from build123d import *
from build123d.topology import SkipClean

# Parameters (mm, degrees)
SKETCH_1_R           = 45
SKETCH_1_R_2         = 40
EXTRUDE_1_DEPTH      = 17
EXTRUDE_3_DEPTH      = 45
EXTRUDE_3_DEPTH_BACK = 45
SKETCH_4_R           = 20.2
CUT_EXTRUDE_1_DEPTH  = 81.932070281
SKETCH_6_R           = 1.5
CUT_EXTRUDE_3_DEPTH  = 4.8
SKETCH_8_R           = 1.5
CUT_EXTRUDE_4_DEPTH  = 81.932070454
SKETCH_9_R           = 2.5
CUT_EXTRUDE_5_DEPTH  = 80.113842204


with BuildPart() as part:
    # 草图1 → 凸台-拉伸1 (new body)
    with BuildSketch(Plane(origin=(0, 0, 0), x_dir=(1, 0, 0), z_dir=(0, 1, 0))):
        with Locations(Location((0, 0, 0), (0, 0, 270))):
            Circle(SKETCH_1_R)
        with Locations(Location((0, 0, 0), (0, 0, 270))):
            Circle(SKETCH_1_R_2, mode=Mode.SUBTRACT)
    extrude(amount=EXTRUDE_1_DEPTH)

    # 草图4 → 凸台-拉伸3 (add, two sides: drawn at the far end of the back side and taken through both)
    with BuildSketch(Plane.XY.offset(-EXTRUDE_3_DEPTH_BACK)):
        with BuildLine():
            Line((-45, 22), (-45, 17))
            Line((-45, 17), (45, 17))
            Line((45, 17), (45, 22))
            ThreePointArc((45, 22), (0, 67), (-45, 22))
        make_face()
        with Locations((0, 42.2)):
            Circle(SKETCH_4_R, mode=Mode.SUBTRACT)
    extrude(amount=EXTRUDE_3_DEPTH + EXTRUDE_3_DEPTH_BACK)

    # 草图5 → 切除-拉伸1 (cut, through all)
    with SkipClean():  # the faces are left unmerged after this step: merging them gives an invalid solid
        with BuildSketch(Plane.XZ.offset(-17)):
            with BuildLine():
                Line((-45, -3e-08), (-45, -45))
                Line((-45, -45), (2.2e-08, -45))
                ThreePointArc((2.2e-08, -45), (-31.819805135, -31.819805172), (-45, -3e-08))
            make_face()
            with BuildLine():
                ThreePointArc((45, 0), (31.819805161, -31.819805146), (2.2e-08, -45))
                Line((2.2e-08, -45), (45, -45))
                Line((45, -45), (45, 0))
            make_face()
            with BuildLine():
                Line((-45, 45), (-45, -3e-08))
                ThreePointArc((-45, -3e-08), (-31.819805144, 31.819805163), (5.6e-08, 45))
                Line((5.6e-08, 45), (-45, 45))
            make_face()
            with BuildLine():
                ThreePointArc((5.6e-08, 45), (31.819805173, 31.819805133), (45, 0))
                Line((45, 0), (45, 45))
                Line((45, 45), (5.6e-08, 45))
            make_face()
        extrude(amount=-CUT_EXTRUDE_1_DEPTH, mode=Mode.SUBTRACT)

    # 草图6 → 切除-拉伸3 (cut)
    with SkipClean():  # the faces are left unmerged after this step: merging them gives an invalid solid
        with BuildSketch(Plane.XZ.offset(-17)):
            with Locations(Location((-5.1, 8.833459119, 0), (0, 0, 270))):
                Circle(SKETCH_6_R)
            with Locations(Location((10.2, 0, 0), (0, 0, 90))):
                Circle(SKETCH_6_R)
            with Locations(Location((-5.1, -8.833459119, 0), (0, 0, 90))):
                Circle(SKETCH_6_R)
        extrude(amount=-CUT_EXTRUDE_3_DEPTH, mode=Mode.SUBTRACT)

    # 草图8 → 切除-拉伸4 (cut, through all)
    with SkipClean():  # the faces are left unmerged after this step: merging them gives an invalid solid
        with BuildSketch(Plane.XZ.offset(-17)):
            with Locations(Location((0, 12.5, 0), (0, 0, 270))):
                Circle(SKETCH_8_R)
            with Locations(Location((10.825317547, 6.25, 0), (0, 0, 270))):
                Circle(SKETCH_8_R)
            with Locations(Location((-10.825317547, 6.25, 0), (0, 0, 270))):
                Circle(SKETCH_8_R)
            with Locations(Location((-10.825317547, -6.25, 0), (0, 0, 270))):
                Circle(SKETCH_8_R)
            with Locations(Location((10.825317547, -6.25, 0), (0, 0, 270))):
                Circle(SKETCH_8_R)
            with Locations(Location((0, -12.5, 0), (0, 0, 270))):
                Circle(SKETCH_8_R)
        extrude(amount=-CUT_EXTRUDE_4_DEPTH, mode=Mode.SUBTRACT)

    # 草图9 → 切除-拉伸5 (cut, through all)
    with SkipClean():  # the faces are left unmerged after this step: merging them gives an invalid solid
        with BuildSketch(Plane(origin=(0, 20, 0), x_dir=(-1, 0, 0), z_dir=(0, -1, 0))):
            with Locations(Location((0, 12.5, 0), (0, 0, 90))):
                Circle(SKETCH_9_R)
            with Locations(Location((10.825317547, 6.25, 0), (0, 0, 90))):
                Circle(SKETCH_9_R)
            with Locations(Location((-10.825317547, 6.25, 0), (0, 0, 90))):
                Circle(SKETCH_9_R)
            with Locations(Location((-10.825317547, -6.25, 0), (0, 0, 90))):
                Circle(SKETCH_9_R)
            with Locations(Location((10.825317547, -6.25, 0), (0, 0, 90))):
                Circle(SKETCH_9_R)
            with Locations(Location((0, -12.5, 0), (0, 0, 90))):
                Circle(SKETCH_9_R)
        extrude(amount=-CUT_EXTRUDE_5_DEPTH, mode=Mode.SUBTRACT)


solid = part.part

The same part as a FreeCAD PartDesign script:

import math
import FreeCAD as App
import Part
import Sketcher
from FreeCAD import Vector
Q = App.Units.Quantity

doc = App.newDocument("Part")
body = doc.addObject("PartDesign::Body", "Body")

# Sketch on XZ plane
sketch1 = body.newObject("Sketcher::SketchObject", "Sketch")
sketch1.AttachmentSupport = (doc.getObject("XZ_Plane"), [""])
sketch1.MapMode = "FlatFace"
sketch1.addGeometry([
    Part.Circle(Vector(0, 0, 0), Vector(0, 0, 1), 45),
    Part.Circle(Vector(0, 0, 0), Vector(0, 0, 1), 40),
], False)
sketch1.addConstraint([
    Sketcher.Constraint("Coincident", 0, 3, -1, 1),
    Sketcher.Constraint("Coincident", 1, 3, -1, 1),
    Sketcher.Constraint("Diameter", 0, Q("90 mm")),
    Sketcher.Constraint("Diameter", 1, Q("80 mm")),
])
pad1 = body.newObject("PartDesign::Pad", "Pad")
pad1.Profile = sketch1
pad1.Length = 17
pad1.Reversed = True

# Sketch on XY plane
sketch2 = body.newObject("Sketcher::SketchObject", "Sketch001")
sketch2.AttachmentSupport = (doc.getObject("XY_Plane"), [""])
sketch2.MapMode = "FlatFace"
sketch2.addGeometry([
    Part.LineSegment(Vector(-45, 22, 0), Vector(-45, 17, 0)),  # 0
    Part.LineSegment(Vector(-45, 17, 0), Vector(45, 17, 0)),  # 1
    Part.LineSegment(Vector(45, 17, 0), Vector(45, 22, 0)),  # 2
    Part.ArcOfCircle(Part.Circle(Vector(0, 22, 0), Vector(0, 0, 1), 45), math.radians(0), math.radians(180)),  # 3
    Part.Circle(Vector(0, 42, 0), Vector(0, 0, 1), 20),  # 4
], False)
sketch2.addConstraint([
    Sketcher.Constraint("Coincident", 0, 2, 1, 1),
    Sketcher.Constraint("Coincident", 1, 2, 2, 1),
    Sketcher.Constraint("Tangent", 2, 2, 3, 1),
    Sketcher.Constraint("Tangent", 3, 2, 0, 1),
    Sketcher.Constraint("Vertical", 0),
    Sketcher.Constraint("Horizontal", 1),
    Sketcher.Constraint("Vertical", 2),
    Sketcher.Constraint("PointOnObject", 3, 3, -2),
    Sketcher.Constraint("PointOnObject", 4, 3, -2),
    Sketcher.Constraint("Radius", 3, Q("45 mm")),
    Sketcher.Constraint("Diameter", 4, Q("40.4 mm")),
    Sketcher.Constraint("DistanceY", 0, 2, 0, 1, Q("5 mm")),
    Sketcher.Constraint("DistanceY", -1, 1, 3, 3, Q("22 mm")),
    Sketcher.Constraint("DistanceY", -1, 1, 4, 3, Q("42.2 mm")),
])
pad2 = body.newObject("PartDesign::Pad", "Pad001")
pad2.Profile = sketch2
pad2.Type = "TwoLengths"
pad2.Length = 45
pad2.Length2 = 45

# Sketch on XZ plane
sketch3 = body.newObject("Sketcher::SketchObject", "Sketch002")
sketch3.AttachmentSupport = (doc.getObject("XZ_Plane"), [""])
sketch3.MapMode = "FlatFace"
sketch3.AttachmentOffset = App.Placement(Vector(0, 0, -17), App.Rotation())
sketch3.addGeometry([
    Part.LineSegment(Vector(-45, 0, 0), Vector(-45, -45, 0)),  # 0
    Part.LineSegment(Vector(-45, -45, 0), Vector(0, -45, 0)),  # 1
    Part.ArcOfCircle(Part.Circle(Vector(0, 0, 0), Vector(0, 0, 1), 45), math.radians(-180), math.radians(-90)),  # 2
    Part.ArcOfCircle(Part.Circle(Vector(0, 0, 0), Vector(0, 0, 1), 45), math.radians(-90), math.radians(0)),  # 3
    Part.LineSegment(Vector(0, -45, 0), Vector(45, -45, 0)),  # 4
    Part.LineSegment(Vector(45, -45, 0), Vector(45, 0, 0)),  # 5
    Part.LineSegment(Vector(-45, 45, 0), Vector(-45, 0, 0)),  # 6
    Part.ArcOfCircle(Part.Circle(Vector(0, 0, 0), Vector(0, 0, 1), 45), math.radians(90), math.radians(180)),  # 7
    Part.LineSegment(Vector(0, 45, 0), Vector(-45, 45, 0)),  # 8
    Part.ArcOfCircle(Part.Circle(Vector(0, 0, 0), Vector(0, 0, 1), 45), math.radians(0), math.radians(90)),  # 9
    Part.LineSegment(Vector(45, 0, 0), Vector(45, 45, 0)),  # 10
    Part.LineSegment(Vector(45, 45, 0), Vector(0, 45, 0)),  # 11
], False)
sketch3.addConstraint([
    Sketcher.Constraint("Coincident", 0, 2, 1, 1),
    Sketcher.Constraint("Tangent", 1, 2, 2, 2),
    Sketcher.Constraint("Tangent", 2, 1, 0, 1),
    Sketcher.Constraint("Tangent", 3, 1, 4, 1),
    Sketcher.Constraint("Coincident", 4, 2, 5, 1),
    Sketcher.Constraint("Tangent", 5, 2, 3, 2),
    Sketcher.Constraint("Tangent", 6, 2, 7, 2),
    Sketcher.Constraint("Tangent", 7, 1, 8, 1),
    Sketcher.Constraint("Coincident", 8, 2, 6, 1),
    Sketcher.Constraint("Tangent", 9, 1, 10, 1),
    Sketcher.Constraint("Coincident", 10, 2, 11, 1),
    Sketcher.Constraint("Tangent", 11, 2, 9, 2),
    Sketcher.Constraint("Vertical", 0),
    Sketcher.Constraint("Horizontal", 1),
    Sketcher.Constraint("Horizontal", 4),
    Sketcher.Constraint("Vertical", 5),
    Sketcher.Constraint("Vertical", 6),
    Sketcher.Constraint("Horizontal", 8),
    Sketcher.Constraint("Vertical", 10),
    Sketcher.Constraint("Horizontal", 11),
    Sketcher.Constraint("Coincident", 2, 3, -1, 1),
    Sketcher.Constraint("Coincident", 3, 3, -1, 1),
    Sketcher.Constraint("Coincident", 7, 3, -1, 1),
    Sketcher.Constraint("Coincident", 9, 3, -1, 1),
    Sketcher.Constraint("Equal", 2, 3),
    Sketcher.Constraint("Equal", 3, 7),
    Sketcher.Constraint("Equal", 7, 9),
    Sketcher.Constraint("Radius", 2, Q("45 mm")),
])
pocket1 = body.newObject("PartDesign::Pocket", "Pocket")
pocket1.Profile = sketch3
pocket1.Type = "ThroughAll"

# Sketch on XZ plane
sketch4 = body.newObject("Sketcher::SketchObject", "Sketch003")
sketch4.AttachmentSupport = (doc.getObject("XZ_Plane"), [""])
sketch4.MapMode = "FlatFace"
sketch4.AttachmentOffset = App.Placement(Vector(0, 0, -17), App.Rotation())
sketch4.addGeometry([
    Part.Circle(Vector(-5.1, 8.8, 0), Vector(0, 0, 1), 1.5),
    Part.Circle(Vector(10.2, 0, 0), Vector(0, 0, 1), 1.5),
    Part.Circle(Vector(-5.1, -8.8, 0), Vector(0, 0, 1), 1.5),
], False)
sketch4.addConstraint([
    Sketcher.Constraint("Equal", 0, 1),
    Sketcher.Constraint("Equal", 1, 2),
    Sketcher.Constraint("Symmetric", 0, 3, 2, 3, -1),
    Sketcher.Constraint("PointOnObject", 1, 3, -1),
    Sketcher.Constraint("Diameter", 0, Q("3 mm")),
    Sketcher.Constraint("DistanceX", 0, 3, -1, 1, Q("5.1 mm")),
    Sketcher.Constraint("DistanceX", -1, 1, 1, 3, Q("10.2 mm")),
    Sketcher.Constraint("DistanceY", -1, 1, 0, 3, Q("8.833459 mm")),
])
pocket2 = body.newObject("PartDesign::Pocket", "Pocket001")
pocket2.Profile = sketch4
pocket2.Length = 4.8

# Sketch on XZ plane
sketch5 = body.newObject("Sketcher::SketchObject", "Sketch004")
sketch5.AttachmentSupport = (doc.getObject("XZ_Plane"), [""])
sketch5.MapMode = "FlatFace"
sketch5.AttachmentOffset = App.Placement(Vector(0, 0, -17), App.Rotation())
sketch5.addGeometry([
    Part.Circle(Vector(0, 12.5, 0), Vector(0, 0, 1), 1.5),  # 0
    Part.Circle(Vector(10.8, 6.2, 0), Vector(0, 0, 1), 1.5),  # 1
    Part.Circle(Vector(-10.8, 6.2, 0), Vector(0, 0, 1), 1.5),  # 2
    Part.Circle(Vector(-10.8, -6.2, 0), Vector(0, 0, 1), 1.5),  # 3
    Part.Circle(Vector(10.8, -6.2, 0), Vector(0, 0, 1), 1.5),  # 4
    Part.Circle(Vector(0, -12.5, 0), Vector(0, 0, 1), 1.5),  # 5
], False)
sketch5.addConstraint([
    Sketcher.Constraint("Equal", 0, 1),
    Sketcher.Constraint("Equal", 1, 2),
    Sketcher.Constraint("Equal", 2, 3),
    Sketcher.Constraint("Equal", 3, 4),
    Sketcher.Constraint("Equal", 4, 5),
    Sketcher.Constraint("Symmetric", 1, 3, 3, 3, -1, 1),
    Sketcher.Constraint("Symmetric", 2, 3, 4, 3, -1, 1),
    Sketcher.Constraint("Symmetric", 0, 3, 5, 3, -1, 1),
    Sketcher.Constraint("Symmetric", 1, 3, 2, 3, -2),
    Sketcher.Constraint("PointOnObject", 0, 3, -2),
    Sketcher.Constraint("Diameter", 0, Q("3 mm")),
    Sketcher.Constraint("DistanceY", 5, 3, 0, 3, Q("25 mm")),
    Sketcher.Constraint("DistanceY", 3, 3, 2, 3, Q("12.5 mm")),
    Sketcher.Constraint("DistanceX", -1, 1, 1, 3, Q("10.825318 mm")),
])
pocket3 = body.newObject("PartDesign::Pocket", "Pocket002")
pocket3.Profile = sketch5
pocket3.Type = "ThroughAll"

# Sketch on XZ plane
sketch6 = body.newObject("Sketcher::SketchObject", "Sketch005")
sketch6.AttachmentSupport = (doc.getObject("XZ_Plane"), [""])
sketch6.MapMode = "FlatFace"
sketch6.AttachmentOffset = App.Placement(Vector(0, 0, -20), App.Rotation())
sketch6.addGeometry([
    Part.Circle(Vector(0, -12.5, 0), Vector(0, 0, 1), 2.5),  # 0
    Part.Circle(Vector(-10.8, -6.2, 0), Vector(0, 0, 1), 2.5),  # 1
    Part.Circle(Vector(10.8, -6.2, 0), Vector(0, 0, 1), 2.5),  # 2
    Part.Circle(Vector(10.8, 6.2, 0), Vector(0, 0, 1), 2.5),  # 3
    Part.Circle(Vector(-10.8, 6.2, 0), Vector(0, 0, 1), 2.5),  # 4
    Part.Circle(Vector(0, 12.5, 0), Vector(0, 0, 1), 2.5),  # 5
], False)
sketch6.addConstraint([
    Sketcher.Constraint("Equal", 0, 1),
    Sketcher.Constraint("Equal", 1, 2),
    Sketcher.Constraint("Equal", 2, 3),
    Sketcher.Constraint("Equal", 3, 4),
    Sketcher.Constraint("Equal", 4, 5),
    Sketcher.Constraint("Symmetric", 1, 3, 3, 3, -1, 1),
    Sketcher.Constraint("Symmetric", 2, 3, 4, 3, -1, 1),
    Sketcher.Constraint("Symmetric", 0, 3, 5, 3, -1, 1),
    Sketcher.Constraint("Symmetric", 1, 3, 2, 3, -2),
    Sketcher.Constraint("PointOnObject", 0, 3, -2),
    Sketcher.Constraint("Diameter", 0, Q("5 mm")),
    Sketcher.Constraint("DistanceY", 0, 3, 5, 3, Q("25 mm")),
    Sketcher.Constraint("DistanceY", 2, 3, 3, 3, Q("12.5 mm")),
    Sketcher.Constraint("DistanceX", 1, 3, -1, 1, Q("10.825318 mm")),
])
pocket4 = body.newObject("PartDesign::Pocket", "Pocket003")
pocket4.Profile = sketch6
pocket4.Type = "ThroughAll"

doc.recompute()
